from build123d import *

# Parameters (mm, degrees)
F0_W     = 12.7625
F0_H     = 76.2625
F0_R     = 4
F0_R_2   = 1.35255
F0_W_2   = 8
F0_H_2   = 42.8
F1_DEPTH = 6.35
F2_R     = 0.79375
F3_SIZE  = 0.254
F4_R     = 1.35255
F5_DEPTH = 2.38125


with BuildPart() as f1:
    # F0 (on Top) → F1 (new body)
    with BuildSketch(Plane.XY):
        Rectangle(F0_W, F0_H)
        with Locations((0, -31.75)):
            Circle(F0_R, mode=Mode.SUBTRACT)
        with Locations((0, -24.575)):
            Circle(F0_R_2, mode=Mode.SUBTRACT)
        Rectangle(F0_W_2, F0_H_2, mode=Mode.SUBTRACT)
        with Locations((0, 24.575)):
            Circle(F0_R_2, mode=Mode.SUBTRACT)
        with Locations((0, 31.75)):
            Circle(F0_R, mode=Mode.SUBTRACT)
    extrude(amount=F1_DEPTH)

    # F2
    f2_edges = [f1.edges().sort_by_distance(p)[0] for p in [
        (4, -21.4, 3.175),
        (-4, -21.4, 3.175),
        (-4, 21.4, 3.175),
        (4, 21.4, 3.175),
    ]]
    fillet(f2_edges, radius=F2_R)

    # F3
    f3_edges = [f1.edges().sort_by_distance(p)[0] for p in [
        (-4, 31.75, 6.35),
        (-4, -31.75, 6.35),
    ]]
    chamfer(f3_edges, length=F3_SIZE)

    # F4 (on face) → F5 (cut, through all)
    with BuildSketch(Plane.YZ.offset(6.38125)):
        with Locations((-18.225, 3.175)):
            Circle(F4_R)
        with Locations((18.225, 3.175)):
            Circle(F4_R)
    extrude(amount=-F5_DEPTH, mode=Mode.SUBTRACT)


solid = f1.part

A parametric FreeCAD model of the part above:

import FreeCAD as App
import Part
import Sketcher
Q = App.Units.Quantity


def edges_at(feature, points):
    """Names of the edges that pass closest to the given points."""
    edges = feature.Shape.Edges
    near = lambda p: min(range(len(edges)), key=lambda i: edges[i].distToShape(Part.Vertex(*p))[0])
    return sorted({f"Edge{near(p) + 1}" for p in points})

doc = App.newDocument("Part")
body = doc.addObject("PartDesign::Body", "Body")

# Sketch on XY plane
sketch1 = body.newObject("Sketcher::SketchObject", "Sketch")
sketch1.AttachmentSupport = (doc.getObject("XY_Plane"), [""])
sketch1.MapMode = "FlatFace"
sketch1.addGeometry([
    Part.LineSegment(App.Vector(-6.4, 38.1, 0), App.Vector(-6.4, -38.1, 0)),  # 0
    Part.LineSegment(App.Vector(-6.4, -38.1, 0), App.Vector(6.4, -38.1, 0)),  # 1
    Part.LineSegment(App.Vector(6.4, -38.1, 0), App.Vector(6.4, 38.1, 0)),  # 2
    Part.LineSegment(App.Vector(6.4, 38.1, 0), App.Vector(-6.4, 38.1, 0)),  # 3
    Part.Circle(App.Vector(0, -31.8, 0), App.Vector(0, 0, 1), 4),  # 4
    Part.Circle(App.Vector(0, -24.6, 0), App.Vector(0, 0, 1), 1.4),  # 5
    Part.LineSegment(App.Vector(4, -21.4, 0), App.Vector(-4, -21.4, 0)),  # 6
    Part.LineSegment(App.Vector(-4, -21.4, 0), App.Vector(-4, 21.4, 0)),  # 7
    Part.LineSegment(App.Vector(-4, 21.4, 0), App.Vector(4, 21.4, 0)),  # 8
    Part.LineSegment(App.Vector(4, 21.4, 0), App.Vector(4, -21.4, 0)),  # 9
    Part.Circle(App.Vector(0, 24.6, 0), App.Vector(0, 0, 1), 1.4),  # 10
    Part.Circle(App.Vector(0, 31.8, 0), App.Vector(0, 0, 1), 4),  # 11
], False)
sketch1.addConstraint([
    Sketcher.Constraint("Coincident", 0, 2, 1, 1),
    Sketcher.Constraint("Coincident", 1, 2, 2, 1),
    Sketcher.Constraint("Coincident", 2, 2, 3, 1),
    Sketcher.Constraint("Coincident", 3, 2, 0, 1),
    Sketcher.Constraint("Coincident", 6, 2, 7, 1),
    Sketcher.Constraint("Coincident", 7, 2, 8, 1),
    Sketcher.Constraint("Coincident", 8, 2, 9, 1),
    Sketcher.Constraint("Coincident", 9, 2, 6, 1),
    Sketcher.Constraint("Vertical", 0),
    Sketcher.Constraint("Horizontal", 1),
    Sketcher.Constraint("Vertical", 2),
    Sketcher.Constraint("Horizontal", 3),
    Sketcher.Constraint("Horizontal", 6),
    Sketcher.Constraint("Vertical", 7),
    Sketcher.Constraint("Horizontal", 8),
    Sketcher.Constraint("Vertical", 9),
    Sketcher.Constraint("Equal", 5, 10),
    Sketcher.Constraint("Equal", 4, 11),
    Sketcher.Constraint("Symmetric", 5, 3, 10, 3, -1, 1),
    Sketcher.Constraint("Symmetric", 4, 3, 11, 3, -1, 1),
    Sketcher.Constraint("Symmetric", 0, 2, 2, 2, -1, 1),
    Sketcher.Constraint("Symmetric", 6, 2, 8, 2, -1, 1),
    Sketcher.Constraint("PointOnObject", 4, 3, -2),
    Sketcher.Constraint("PointOnObject", 5, 3, -2),
    Sketcher.Constraint("Diameter", 5, Q("0.1065 in")),
    Sketcher.Constraint("DistanceY", 4, 3, 11, 3, Q("2.5 in")),
    Sketcher.Constraint("Diameter", 4, Q("8 mm")),
    Sketcher.Constraint("DistanceY", 0, 2, 10, 3, Q("2.46875 in")),
    Sketcher.Constraint("DistanceY", 5, 3, 6, 2, Q("0.125 in")),
    Sketcher.Constraint("DistanceX", 0, 2, 6, 2, Q("0.09375 in")),
    Sketcher.Constraint("DistanceX", 1, 1, 1, 2, Q("12.7625 mm")),
    Sketcher.Constraint("DistanceY", 0, 2, 0, 1, Q("76.2625 mm")),
])
pad1 = body.newObject("PartDesign::Pad", "Pad")
pad1.Profile = sketch1
pad1.Length = Q("0.25 in")
doc.recompute()

fillet = body.newObject("PartDesign::Fillet", "Fillet")
fillet.Base = (pad1, edges_at(pad1, [
    (4, -21.4, 3.175),
    (-4, -21.4, 3.175),
    (-4, 21.4, 3.175),
    (4, 21.4, 3.175),
]))
fillet.Radius = Q("0.03125 in")
doc.recompute()

chamfer = body.newObject("PartDesign::Chamfer", "Chamfer")
chamfer.Base = (fillet, edges_at(fillet, [(-4, 31.75, 6.35), (-4, -31.75, 6.35)]))
chamfer.Size = Q("0.01 in")

# Sketch on YZ plane
sketch2 = body.newObject("Sketcher::SketchObject", "Sketch001")
sketch2.AttachmentSupport = (doc.getObject("YZ_Plane"), [""])
sketch2.MapMode = "FlatFace"
sketch2.AttachmentOffset = App.Placement(App.Vector(0, 0, 6.38125), App.Rotation())
sketch2.addGeometry([
    Part.Circle(App.Vector(-18.2, 3.2, 0), App.Vector(0, 0, 1), 1.4),
    Part.Circle(App.Vector(18.2, 3.2, 0), App.Vector(0, 0, 1), 1.4),
], False)
sketch2.addConstraint([
    Sketcher.Constraint("Equal", 0, 1),
    Sketcher.Constraint("Symmetric", 0, 3, 1, 3, -2),
    Sketcher.Constraint("Diameter", 0, Q("0.1065 in")),
    Sketcher.Constraint("DistanceY", -1, 1, 0, 3, Q("0.125 in")),
    Sketcher.Constraint("DistanceX", 0, 3, -1, 1, Q("18.225 mm")),
])
pocket1 = body.newObject("PartDesign::Pocket", "Pocket")
pocket1.Profile = sketch2
pocket1.Length = Q("0.09375 in")

doc.recompute()
